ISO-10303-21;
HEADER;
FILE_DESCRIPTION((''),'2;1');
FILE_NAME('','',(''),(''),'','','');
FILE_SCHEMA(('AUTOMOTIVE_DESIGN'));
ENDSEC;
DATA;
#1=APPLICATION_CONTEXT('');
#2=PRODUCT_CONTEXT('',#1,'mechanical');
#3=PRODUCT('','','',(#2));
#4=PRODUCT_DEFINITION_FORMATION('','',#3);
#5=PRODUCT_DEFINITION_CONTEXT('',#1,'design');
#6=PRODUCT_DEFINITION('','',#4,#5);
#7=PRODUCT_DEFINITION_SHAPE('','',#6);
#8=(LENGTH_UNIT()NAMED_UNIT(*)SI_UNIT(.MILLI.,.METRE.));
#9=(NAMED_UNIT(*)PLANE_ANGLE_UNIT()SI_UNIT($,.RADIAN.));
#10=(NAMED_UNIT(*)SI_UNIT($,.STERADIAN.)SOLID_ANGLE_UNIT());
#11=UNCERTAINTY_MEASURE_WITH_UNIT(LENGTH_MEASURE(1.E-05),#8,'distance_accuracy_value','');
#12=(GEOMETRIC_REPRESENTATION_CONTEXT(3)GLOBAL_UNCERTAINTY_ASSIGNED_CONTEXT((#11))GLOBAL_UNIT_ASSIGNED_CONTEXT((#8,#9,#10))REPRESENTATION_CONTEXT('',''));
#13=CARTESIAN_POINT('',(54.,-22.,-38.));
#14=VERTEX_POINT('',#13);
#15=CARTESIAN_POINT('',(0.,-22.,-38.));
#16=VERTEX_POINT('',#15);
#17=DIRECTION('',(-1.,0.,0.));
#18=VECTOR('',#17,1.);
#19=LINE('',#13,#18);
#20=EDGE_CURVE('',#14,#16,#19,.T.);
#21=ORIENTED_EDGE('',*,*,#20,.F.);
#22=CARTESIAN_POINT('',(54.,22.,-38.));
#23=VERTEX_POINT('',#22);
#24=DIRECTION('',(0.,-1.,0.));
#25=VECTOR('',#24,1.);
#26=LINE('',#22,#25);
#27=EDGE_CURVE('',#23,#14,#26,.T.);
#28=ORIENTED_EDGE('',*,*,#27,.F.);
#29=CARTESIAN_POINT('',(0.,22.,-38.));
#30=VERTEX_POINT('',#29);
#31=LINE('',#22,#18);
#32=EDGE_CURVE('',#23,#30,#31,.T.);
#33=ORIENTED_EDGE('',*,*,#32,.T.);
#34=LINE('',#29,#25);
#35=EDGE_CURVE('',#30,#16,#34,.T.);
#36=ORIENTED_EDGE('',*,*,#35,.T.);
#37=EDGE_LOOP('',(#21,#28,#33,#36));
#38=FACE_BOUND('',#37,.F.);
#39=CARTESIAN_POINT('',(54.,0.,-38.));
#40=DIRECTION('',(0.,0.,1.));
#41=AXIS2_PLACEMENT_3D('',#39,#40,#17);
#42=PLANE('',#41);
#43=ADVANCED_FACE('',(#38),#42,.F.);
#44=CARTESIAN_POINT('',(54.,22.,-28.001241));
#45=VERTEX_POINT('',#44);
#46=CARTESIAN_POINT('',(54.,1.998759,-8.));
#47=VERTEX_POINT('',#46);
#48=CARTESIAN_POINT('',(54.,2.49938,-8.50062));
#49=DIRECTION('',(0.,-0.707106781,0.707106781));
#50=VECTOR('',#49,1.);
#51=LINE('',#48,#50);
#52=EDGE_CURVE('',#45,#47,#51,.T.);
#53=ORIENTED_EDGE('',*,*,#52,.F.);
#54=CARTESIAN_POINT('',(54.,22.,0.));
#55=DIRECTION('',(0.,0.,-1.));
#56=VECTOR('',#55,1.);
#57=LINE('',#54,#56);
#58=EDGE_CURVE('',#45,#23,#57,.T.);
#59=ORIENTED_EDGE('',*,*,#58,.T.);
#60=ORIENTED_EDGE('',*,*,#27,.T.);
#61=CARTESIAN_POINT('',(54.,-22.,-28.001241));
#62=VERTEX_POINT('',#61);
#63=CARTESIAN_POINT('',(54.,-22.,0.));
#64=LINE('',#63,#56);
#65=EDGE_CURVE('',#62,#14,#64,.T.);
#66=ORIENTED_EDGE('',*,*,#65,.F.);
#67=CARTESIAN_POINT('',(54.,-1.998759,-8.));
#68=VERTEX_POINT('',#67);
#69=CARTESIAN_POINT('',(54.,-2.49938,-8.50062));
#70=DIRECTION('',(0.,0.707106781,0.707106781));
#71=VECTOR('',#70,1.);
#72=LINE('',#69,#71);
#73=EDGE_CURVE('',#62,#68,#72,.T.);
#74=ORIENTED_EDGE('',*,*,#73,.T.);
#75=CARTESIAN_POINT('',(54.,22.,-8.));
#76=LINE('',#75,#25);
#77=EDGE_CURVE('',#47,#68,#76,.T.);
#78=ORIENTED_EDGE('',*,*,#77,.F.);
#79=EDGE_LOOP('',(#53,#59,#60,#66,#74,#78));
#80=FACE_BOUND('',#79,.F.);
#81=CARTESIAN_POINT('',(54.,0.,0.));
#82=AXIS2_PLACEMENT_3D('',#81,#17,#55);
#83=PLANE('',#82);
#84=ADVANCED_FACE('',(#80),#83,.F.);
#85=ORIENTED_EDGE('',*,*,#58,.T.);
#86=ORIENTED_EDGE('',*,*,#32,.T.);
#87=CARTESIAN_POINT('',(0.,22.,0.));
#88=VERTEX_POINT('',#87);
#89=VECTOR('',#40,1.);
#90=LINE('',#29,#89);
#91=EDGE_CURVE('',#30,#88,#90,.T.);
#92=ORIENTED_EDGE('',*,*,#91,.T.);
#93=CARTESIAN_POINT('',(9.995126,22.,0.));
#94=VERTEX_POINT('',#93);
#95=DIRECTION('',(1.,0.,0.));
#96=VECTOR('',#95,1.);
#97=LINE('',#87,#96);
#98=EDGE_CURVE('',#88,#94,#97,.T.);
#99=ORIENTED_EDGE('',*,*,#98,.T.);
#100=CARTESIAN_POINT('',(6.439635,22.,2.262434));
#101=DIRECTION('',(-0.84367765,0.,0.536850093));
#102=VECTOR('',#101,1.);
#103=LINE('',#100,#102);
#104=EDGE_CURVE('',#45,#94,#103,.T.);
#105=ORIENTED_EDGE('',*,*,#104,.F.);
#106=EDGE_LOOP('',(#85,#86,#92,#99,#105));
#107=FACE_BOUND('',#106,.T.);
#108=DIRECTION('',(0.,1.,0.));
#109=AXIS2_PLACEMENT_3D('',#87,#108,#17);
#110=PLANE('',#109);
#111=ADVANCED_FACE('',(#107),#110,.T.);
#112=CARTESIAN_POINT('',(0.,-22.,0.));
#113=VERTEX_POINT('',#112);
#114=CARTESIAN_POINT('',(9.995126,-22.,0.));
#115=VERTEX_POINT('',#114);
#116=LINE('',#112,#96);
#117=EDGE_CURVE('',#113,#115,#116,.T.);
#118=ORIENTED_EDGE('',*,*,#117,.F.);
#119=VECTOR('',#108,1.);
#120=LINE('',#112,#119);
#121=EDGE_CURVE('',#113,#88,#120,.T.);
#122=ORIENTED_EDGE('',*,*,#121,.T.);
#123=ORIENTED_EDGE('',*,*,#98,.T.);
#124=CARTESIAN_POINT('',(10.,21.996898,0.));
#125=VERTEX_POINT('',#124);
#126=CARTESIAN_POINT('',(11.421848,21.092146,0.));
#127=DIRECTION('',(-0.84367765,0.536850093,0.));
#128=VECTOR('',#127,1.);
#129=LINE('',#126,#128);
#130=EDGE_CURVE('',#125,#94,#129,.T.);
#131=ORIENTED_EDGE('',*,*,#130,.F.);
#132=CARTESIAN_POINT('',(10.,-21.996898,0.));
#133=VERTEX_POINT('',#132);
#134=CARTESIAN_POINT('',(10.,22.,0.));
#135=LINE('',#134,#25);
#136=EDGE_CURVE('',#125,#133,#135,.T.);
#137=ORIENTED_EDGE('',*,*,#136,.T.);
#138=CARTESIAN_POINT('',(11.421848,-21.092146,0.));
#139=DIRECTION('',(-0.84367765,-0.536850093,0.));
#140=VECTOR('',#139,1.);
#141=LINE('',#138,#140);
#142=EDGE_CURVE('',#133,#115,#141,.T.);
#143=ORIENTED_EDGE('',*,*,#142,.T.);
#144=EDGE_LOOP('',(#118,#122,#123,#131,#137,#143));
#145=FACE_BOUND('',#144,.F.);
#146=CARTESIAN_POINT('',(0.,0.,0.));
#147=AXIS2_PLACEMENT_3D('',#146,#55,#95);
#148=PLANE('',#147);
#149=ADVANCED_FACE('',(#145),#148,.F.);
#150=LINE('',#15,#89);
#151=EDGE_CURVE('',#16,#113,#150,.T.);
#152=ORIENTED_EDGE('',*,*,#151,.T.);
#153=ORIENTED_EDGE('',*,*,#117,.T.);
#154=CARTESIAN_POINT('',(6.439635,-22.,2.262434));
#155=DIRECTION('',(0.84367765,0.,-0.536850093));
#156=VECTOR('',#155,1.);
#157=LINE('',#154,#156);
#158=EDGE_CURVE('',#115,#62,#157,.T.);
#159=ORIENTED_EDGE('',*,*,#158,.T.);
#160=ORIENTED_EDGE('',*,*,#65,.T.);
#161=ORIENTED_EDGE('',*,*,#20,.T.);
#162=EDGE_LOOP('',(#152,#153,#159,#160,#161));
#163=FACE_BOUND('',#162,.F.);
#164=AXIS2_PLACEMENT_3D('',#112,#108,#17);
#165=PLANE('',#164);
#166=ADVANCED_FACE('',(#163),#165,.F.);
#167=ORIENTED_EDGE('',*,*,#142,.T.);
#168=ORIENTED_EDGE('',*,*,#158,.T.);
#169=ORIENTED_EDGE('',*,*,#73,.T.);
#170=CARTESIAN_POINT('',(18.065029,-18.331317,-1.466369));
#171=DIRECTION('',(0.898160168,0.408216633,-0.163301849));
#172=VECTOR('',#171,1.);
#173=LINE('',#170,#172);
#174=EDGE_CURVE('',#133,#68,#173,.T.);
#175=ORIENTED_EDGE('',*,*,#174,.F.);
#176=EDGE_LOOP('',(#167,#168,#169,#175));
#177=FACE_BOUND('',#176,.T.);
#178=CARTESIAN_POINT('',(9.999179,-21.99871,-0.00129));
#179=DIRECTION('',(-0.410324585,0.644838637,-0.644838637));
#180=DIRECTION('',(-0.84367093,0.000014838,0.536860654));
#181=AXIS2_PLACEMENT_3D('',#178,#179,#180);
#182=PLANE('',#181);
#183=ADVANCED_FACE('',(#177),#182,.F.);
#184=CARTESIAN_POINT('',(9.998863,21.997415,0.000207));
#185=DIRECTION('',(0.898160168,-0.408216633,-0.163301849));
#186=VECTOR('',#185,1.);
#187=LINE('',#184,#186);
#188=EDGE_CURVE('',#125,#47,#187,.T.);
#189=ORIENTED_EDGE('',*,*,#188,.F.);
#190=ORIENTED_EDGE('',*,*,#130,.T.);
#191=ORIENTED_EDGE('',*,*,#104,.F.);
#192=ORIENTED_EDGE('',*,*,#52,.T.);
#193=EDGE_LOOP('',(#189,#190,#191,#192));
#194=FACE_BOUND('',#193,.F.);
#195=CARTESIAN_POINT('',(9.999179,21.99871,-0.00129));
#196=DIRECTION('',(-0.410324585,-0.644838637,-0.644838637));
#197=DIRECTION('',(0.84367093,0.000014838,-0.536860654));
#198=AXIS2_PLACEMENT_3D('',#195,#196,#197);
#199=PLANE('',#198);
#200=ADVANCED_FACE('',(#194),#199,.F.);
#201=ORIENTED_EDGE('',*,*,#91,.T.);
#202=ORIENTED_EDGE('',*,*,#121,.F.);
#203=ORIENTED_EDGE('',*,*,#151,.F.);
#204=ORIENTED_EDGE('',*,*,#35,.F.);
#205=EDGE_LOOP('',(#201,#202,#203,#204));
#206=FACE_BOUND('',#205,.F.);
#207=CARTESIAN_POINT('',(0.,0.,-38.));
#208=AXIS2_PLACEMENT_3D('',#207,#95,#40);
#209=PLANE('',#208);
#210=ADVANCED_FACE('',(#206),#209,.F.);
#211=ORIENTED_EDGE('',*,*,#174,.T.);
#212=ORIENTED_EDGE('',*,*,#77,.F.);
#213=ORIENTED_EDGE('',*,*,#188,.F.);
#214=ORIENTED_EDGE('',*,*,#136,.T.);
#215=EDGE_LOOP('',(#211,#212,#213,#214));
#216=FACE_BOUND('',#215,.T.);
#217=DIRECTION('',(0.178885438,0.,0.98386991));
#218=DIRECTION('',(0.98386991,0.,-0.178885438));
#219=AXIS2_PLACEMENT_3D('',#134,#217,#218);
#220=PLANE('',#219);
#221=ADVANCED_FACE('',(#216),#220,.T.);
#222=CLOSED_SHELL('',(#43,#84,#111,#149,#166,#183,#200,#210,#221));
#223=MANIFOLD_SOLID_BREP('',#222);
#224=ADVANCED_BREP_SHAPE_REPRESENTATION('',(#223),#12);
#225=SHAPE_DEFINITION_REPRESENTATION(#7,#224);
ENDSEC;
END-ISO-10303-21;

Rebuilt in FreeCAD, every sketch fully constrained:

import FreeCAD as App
import Part
import Sketcher
from FreeCAD import Vector

doc = App.newDocument("Part")
params = doc.addObject("Spreadsheet::Sheet", "Params")
for row, (alias, value) in enumerate([
    ("sketch1_width", "54 mm"),
    ("sketch1_height", "38 mm"),
    ("pad1_length", "44 mm"),
    ("sketch2_width", "44 mm"),
    ("sketch2_height", "8 mm"),
    ("pocket1_length", "60 mm"),
    ("pocket2_length", "40 mm"),
], start=1):
    params.set(f"A{row}", alias)
    params.set(f"B{row}", "=" + value)
    params.setAlias(f"B{row}", alias)

body = doc.addObject("PartDesign::Body", "Body")

sketch1 = body.newObject("Sketcher::SketchObject", "Sketch")
sketch1.AttachmentSupport = (doc.getObject("XZ_Plane"), [""])
sketch1.MapMode = "FlatFace"
sketch1.addGeometry([
    Part.LineSegment(Vector(0, -38, 0), Vector(0, 0, 0)),
    Part.LineSegment(Vector(0, 0, 0), Vector(54, 0, 0)),
    Part.LineSegment(Vector(54, 0, 0), Vector(54, -38, 0)),
    Part.LineSegment(Vector(54, -38, 0), Vector(0, -38, 0)),
], False)
sketch1.addConstraint([
    Sketcher.Constraint("Coincident", 0, 2, 1, 1),
    Sketcher.Constraint("Coincident", 1, 2, 2, 1),
    Sketcher.Constraint("Coincident", 2, 2, 3, 1),
    Sketcher.Constraint("Coincident", 3, 2, 0, 1),
    Sketcher.Constraint("Vertical", 0),
    Sketcher.Constraint("Horizontal", 1),
    Sketcher.Constraint("Vertical", 2),
    Sketcher.Constraint("Horizontal", 3),
    Sketcher.Constraint("Coincident", 0, 2, -1, 1),
    Sketcher.Constraint("DistanceX", 1, 1, 1, 2, 54.0),
    Sketcher.Constraint("DistanceY", 0, 1, 0, 2, 38.0),
])
sketch1.setExpression("Constraints[9]", "Params.sketch1_width")
sketch1.setExpression("Constraints[10]", "Params.sketch1_height")
pad1 = body.newObject("PartDesign::Pad", "Pad")
pad1.Profile = sketch1
pad1.setExpression("Length", "Params.pad1_length")
pad1.Midplane = True

sketch2 = body.newObject("Sketcher::SketchObject", "Sketch001")
sketch2.AttachmentSupport = (doc.getObject("XZ_Plane"), [""])
sketch2.MapMode = "FlatFace"
sketch2.AttachmentOffset = App.Placement(Vector(0, 0, -22), App.Rotation())
sketch2.addGeometry([
    Part.LineSegment(Vector(54, -8, 0), Vector(10, 0, 0)),
    Part.LineSegment(Vector(10, 0, 0), Vector(54, 0, 0)),
    Part.LineSegment(Vector(54, 0, 0), Vector(54, -8, 0)),
], False)
sketch2.addConstraint([
    Sketcher.Constraint("Coincident", 0, 2, 1, 1),
    Sketcher.Constraint("Coincident", 1, 2, 2, 1),
    Sketcher.Constraint("Coincident", 2, 2, 0, 1),
    Sketcher.Constraint("Horizontal", 1),
    Sketcher.Constraint("Vertical", 2),
    Sketcher.Constraint("PointOnObject", 0, 2, -1),
    Sketcher.Constraint("DistanceX", -1, 1, 0, 2, 10.0),
    Sketcher.Constraint("DistanceX", 1, 1, 1, 2, 44.0),
    Sketcher.Constraint("DistanceY", 2, 2, 2, 1, 8.0),
])
sketch2.setExpression("Constraints[7]", "Params.sketch2_width")
sketch2.setExpression("Constraints[8]", "Params.sketch2_height")
pocket1 = body.newObject("PartDesign::Pocket", "Pocket")
pocket1.Profile = sketch2
pocket1.setExpression("Length", "Params.pocket1_length")
pocket1.Reversed = True

sketch3 = body.newObject("Sketcher::SketchObject", "Sketch002")
sketch3.Placement = App.Placement(Vector(10, 22, 0), App.Rotation(Vector(0.84367093, 0.000014838, -0.536860654), Vector(0.34619806, -0.764318738, 0.544025524), Vector(-0.410324585, -0.644838637, -0.644838637), "ZXY"))
sketch3.addGeometry([
    Part.LineSegment(Vector(-15, 29, 0), Vector(-15, -12, 0)),
    Part.LineSegment(Vector(-15, -12, 0), Vector(94, -12, 0)),
    Part.LineSegment(Vector(94, -12, 0), Vector(94, 29, 0)),
    Part.LineSegment(Vector(94, 29, 0), Vector(-15, 29, 0)),
], False)
sketch3.addConstraint([
    Sketcher.Constraint("Coincident", 0, 2, 1, 1),
    Sketcher.Constraint("Coincident", 1, 2, 2, 1),
    Sketcher.Constraint("Coincident", 2, 2, 3, 1),
    Sketcher.Constraint("Coincident", 3, 2, 0, 1),
    Sketcher.Constraint("Vertical", 0),
    Sketcher.Constraint("Horizontal", 1),
    Sketcher.Constraint("Vertical", 2),
    Sketcher.Constraint("Horizontal", 3),
    Sketcher.Constraint("DistanceX", 1, 1, 1, 2, 108.8713),
    Sketcher.Constraint("DistanceY", 0, 2, 0, 1, 41.1384),
    Sketcher.Constraint("DistanceX", -1, 1, 1, 2, 93.717),
    Sketcher.Constraint("DistanceY", 0, 2, -1, 1, 12.3218),
])
pocket2 = body.newObject("PartDesign::Pocket", "Pocket001")
pocket2.Profile = sketch3
pocket2.setExpression("Length", "Params.pocket2_length")
doc.recompute()

mirrored = body.newObject("PartDesign::Mirrored", "Mirrored")
mirrored.Originals = [pocket2]
mirrored.MirrorPlane = (doc.getObject("XZ_Plane"), [""])
body.Tip = mirrored

doc.recompute()
